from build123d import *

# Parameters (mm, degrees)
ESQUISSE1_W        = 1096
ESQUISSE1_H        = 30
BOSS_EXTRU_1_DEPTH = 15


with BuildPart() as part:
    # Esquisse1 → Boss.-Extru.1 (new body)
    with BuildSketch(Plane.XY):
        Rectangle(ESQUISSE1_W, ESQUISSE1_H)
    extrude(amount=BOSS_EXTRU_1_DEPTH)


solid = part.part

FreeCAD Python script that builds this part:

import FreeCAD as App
import Part
import Sketcher

doc = App.newDocument("Part")
body = doc.addObject("PartDesign::Body", "Body")

sketch1 = body.newObject("Sketcher::SketchObject", "Sketch")
sketch1.AttachmentSupport = (doc.getObject("XY_Plane"), [""])
sketch1.MapMode = "FlatFace"
sketch1.addGeometry([
    Part.LineSegment(App.Vector(-548, 15, 0), App.Vector(-548, -15, 0)),
    Part.LineSegment(App.Vector(-548, -15, 0), App.Vector(548, -15, 0)),
    Part.LineSegment(App.Vector(548, -15, 0), App.Vector(548, 15, 0)),
    Part.LineSegment(App.Vector(548, 15, 0), App.Vector(-548, 15, 0)),
], False)
sketch1.addConstraint([
    Sketcher.Constraint("Coincident", 0, 2, 1, 1),
    Sketcher.Constraint("Coincident", 1, 2, 2, 1),
    Sketcher.Constraint("Coincident", 2, 2, 3, 1),
    Sketcher.Constraint("Coincident", 3, 2, 0, 1),
    Sketcher.Constraint("Vertical", 0),
    Sketcher.Constraint("Horizontal", 1),
    Sketcher.Constraint("Vertical", 2),
    Sketcher.Constraint("Horizontal", 3),
    Sketcher.Constraint("Symmetric", 0, 2, 2, 2, -1, 1),
    Sketcher.Constraint("DistanceX", 1, 1, 1, 2, 1096.0),
    Sketcher.Constraint("DistanceY", 0, 2, 0, 1, 30.0),
])
pad1 = body.newObject("PartDesign::Pad", "Pad")
pad1.Profile = sketch1
pad1.Length = 15

doc.recompute()
